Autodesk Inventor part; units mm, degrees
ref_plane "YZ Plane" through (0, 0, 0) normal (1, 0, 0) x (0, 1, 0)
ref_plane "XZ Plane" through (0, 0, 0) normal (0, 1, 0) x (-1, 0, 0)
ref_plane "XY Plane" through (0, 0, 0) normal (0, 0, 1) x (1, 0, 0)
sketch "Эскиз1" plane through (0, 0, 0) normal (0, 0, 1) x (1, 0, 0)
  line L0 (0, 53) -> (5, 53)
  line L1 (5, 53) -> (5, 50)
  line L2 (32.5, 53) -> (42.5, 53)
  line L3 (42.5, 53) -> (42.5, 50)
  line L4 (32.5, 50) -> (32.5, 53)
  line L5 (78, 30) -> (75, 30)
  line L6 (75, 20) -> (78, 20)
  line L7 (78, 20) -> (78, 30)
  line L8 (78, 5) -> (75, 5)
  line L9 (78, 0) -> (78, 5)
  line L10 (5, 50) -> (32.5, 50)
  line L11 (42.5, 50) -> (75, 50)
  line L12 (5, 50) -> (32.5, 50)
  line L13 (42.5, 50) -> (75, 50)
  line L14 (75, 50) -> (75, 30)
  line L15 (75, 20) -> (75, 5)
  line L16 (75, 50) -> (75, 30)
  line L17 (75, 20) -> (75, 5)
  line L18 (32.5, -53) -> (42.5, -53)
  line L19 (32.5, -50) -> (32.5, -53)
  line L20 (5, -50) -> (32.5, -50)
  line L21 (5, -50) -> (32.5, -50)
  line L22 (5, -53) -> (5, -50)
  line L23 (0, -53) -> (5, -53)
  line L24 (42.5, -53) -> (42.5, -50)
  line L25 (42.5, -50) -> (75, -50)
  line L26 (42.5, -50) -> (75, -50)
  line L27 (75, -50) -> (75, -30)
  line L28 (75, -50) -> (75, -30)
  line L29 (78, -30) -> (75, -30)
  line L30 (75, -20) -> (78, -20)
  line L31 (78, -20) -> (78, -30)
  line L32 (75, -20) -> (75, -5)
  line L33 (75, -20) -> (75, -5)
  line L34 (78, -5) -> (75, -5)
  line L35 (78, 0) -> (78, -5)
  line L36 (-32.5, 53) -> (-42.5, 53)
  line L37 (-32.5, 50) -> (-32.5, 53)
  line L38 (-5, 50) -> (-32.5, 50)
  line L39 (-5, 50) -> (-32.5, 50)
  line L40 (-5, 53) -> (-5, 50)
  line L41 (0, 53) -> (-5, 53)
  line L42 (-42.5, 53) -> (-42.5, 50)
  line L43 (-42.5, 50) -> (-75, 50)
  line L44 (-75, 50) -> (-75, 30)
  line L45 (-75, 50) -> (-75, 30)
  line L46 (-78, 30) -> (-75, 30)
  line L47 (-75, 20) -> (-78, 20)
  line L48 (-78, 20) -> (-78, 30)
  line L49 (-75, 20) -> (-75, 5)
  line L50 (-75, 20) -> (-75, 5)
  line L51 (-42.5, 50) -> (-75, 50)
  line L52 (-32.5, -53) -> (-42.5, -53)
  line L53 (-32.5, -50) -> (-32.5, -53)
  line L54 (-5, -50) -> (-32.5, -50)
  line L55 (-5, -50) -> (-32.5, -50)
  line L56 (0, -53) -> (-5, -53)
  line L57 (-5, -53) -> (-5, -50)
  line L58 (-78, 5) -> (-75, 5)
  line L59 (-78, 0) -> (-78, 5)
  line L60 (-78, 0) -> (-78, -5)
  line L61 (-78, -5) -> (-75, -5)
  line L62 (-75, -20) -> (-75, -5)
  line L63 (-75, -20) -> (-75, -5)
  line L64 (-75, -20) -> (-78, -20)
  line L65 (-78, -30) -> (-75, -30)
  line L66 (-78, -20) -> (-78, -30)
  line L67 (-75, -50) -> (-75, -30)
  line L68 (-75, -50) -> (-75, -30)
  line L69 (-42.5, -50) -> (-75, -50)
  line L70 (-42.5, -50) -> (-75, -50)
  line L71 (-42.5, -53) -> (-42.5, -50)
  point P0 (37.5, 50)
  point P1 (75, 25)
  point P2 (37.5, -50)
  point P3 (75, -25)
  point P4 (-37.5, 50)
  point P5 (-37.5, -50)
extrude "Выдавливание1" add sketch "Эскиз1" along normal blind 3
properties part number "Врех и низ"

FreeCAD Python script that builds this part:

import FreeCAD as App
import Part
import Sketcher

V = App.Vector

doc = App.newDocument("Part")
body = doc.addObject("PartDesign::Body", "Body")

sketch1 = doc.addObject("Sketcher::SketchObject", "Sketch")
body.addObject(sketch1)
sketch1.AttachmentSupport = (doc.XY_Plane, [""])
sketch1.MapMode = "FlatFace"
sketch1.addGeometry([
    Part.LineSegment(V(5, 53, 0), V(-5, 53, 0)),
    Part.LineSegment(V(-5, 53, 0), V(-5, 50, 0)),
    Part.LineSegment(V(-5, 50, 0), V(-32.5, 50, 0)),
    Part.LineSegment(V(-32.5, 50, 0), V(-32.5, 53, 0)),
    Part.LineSegment(V(-32.5, 53, 0), V(-42.5, 53, 0)),
    Part.LineSegment(V(-42.5, 53, 0), V(-42.5, 50, 0)),
    Part.LineSegment(V(-42.5, 50, 0), V(-75, 50, 0)),
    Part.LineSegment(V(-75, 50, 0), V(-75, 30, 0)),
    Part.LineSegment(V(-75, 30, 0), V(-78, 30, 0)),
    Part.LineSegment(V(-78, 30, 0), V(-78, 20, 0)),
    Part.LineSegment(V(-78, 20, 0), V(-75, 20, 0)),
    Part.LineSegment(V(-75, 20, 0), V(-75, 5, 0)),
    Part.LineSegment(V(-75, 5, 0), V(-78, 5, 0)),
    Part.LineSegment(V(-78, 5, 0), V(-78, -5, 0)),
    Part.LineSegment(V(-78, -5, 0), V(-75, -5, 0)),
    Part.LineSegment(V(-75, -5, 0), V(-75, -20, 0)),
    Part.LineSegment(V(-75, -20, 0), V(-78, -20, 0)),
    Part.LineSegment(V(-78, -20, 0), V(-78, -30, 0)),
    Part.LineSegment(V(-78, -30, 0), V(-75, -30, 0)),
    Part.LineSegment(V(-75, -30, 0), V(-75, -50, 0)),
    Part.LineSegment(V(-75, -50, 0), V(-42.5, -50, 0)),
    Part.LineSegment(V(-42.5, -50, 0), V(-42.5, -53, 0)),
    Part.LineSegment(V(-42.5, -53, 0), V(-32.5, -53, 0)),
    Part.LineSegment(V(-32.5, -53, 0), V(-32.5, -50, 0)),
    Part.LineSegment(V(-32.5, -50, 0), V(-5, -50, 0)),
    Part.LineSegment(V(-5, -50, 0), V(-5, -53, 0)),
    Part.LineSegment(V(-5, -53, 0), V(5, -53, 0)),
    Part.LineSegment(V(5, -53, 0), V(5, -50, 0)),
    Part.LineSegment(V(5, -50, 0), V(32.5, -50, 0)),
    Part.LineSegment(V(32.5, -50, 0), V(32.5, -53, 0)),
    Part.LineSegment(V(32.5, -53, 0), V(42.5, -53, 0)),
    Part.LineSegment(V(42.5, -53, 0), V(42.5, -50, 0)),
    Part.LineSegment(V(42.5, -50, 0), V(75, -50, 0)),
    Part.LineSegment(V(75, -50, 0), V(75, -30, 0)),
    Part.LineSegment(V(75, -30, 0), V(78, -30, 0)),
    Part.LineSegment(V(78, -30, 0), V(78, -20, 0)),
    Part.LineSegment(V(78, -20, 0), V(75, -20, 0)),
    Part.LineSegment(V(75, -20, 0), V(75, -5, 0)),
    Part.LineSegment(V(75, -5, 0), V(78, -5, 0)),
    Part.LineSegment(V(78, -5, 0), V(78, 5, 0)),
    Part.LineSegment(V(78, 5, 0), V(75, 5, 0)),
    Part.LineSegment(V(75, 5, 0), V(75, 20, 0)),
    Part.LineSegment(V(75, 20, 0), V(78, 20, 0)),
    Part.LineSegment(V(78, 20, 0), V(78, 30, 0)),
    Part.LineSegment(V(78, 30, 0), V(75, 30, 0)),
    Part.LineSegment(V(75, 30, 0), V(75, 50, 0)),
    Part.LineSegment(V(75, 50, 0), V(42.5, 50, 0)),
    Part.LineSegment(V(42.5, 50, 0), V(42.5, 53, 0)),
    Part.LineSegment(V(42.5, 53, 0), V(32.5, 53, 0)),
    Part.LineSegment(V(32.5, 53, 0), V(32.5, 50, 0)),
    Part.LineSegment(V(32.5, 50, 0), V(5, 50, 0)),
    Part.LineSegment(V(5, 50, 0), V(5, 53, 0)),
], False)
sketch1.addConstraint([
    Sketcher.Constraint("Coincident", 0, 2, 1, 1),
    Sketcher.Constraint("Coincident", 1, 2, 2, 1),
    Sketcher.Constraint("Coincident", 2, 2, 3, 1),
    Sketcher.Constraint("Coincident", 3, 2, 4, 1),
    Sketcher.Constraint("Coincident", 4, 2, 5, 1),
    Sketcher.Constraint("Coincident", 5, 2, 6, 1),
    Sketcher.Constraint("Coincident", 6, 2, 7, 1),
    Sketcher.Constraint("Coincident", 7, 2, 8, 1),
    Sketcher.Constraint("Coincident", 8, 2, 9, 1),
    Sketcher.Constraint("Coincident", 9, 2, 10, 1),
    Sketcher.Constraint("Coincident", 10, 2, 11, 1),
    Sketcher.Constraint("Coincident", 11, 2, 12, 1),
    Sketcher.Constraint("Coincident", 12, 2, 13, 1),
    Sketcher.Constraint("Coincident", 13, 2, 14, 1),
    Sketcher.Constraint("Coincident", 14, 2, 15, 1),
    Sketcher.Constraint("Coincident", 15, 2, 16, 1),
    Sketcher.Constraint("Coincident", 16, 2, 17, 1),
    Sketcher.Constraint("Coincident", 17, 2, 18, 1),
    Sketcher.Constraint("Coincident", 18, 2, 19, 1),
    Sketcher.Constraint("Coincident", 19, 2, 20, 1),
    Sketcher.Constraint("Coincident", 20, 2, 21, 1),
    Sketcher.Constraint("Coincident", 21, 2, 22, 1),
    Sketcher.Constraint("Coincident", 22, 2, 23, 1),
    Sketcher.Constraint("Coincident", 23, 2, 24, 1),
    Sketcher.Constraint("Coincident", 24, 2, 25, 1),
    Sketcher.Constraint("Coincident", 25, 2, 26, 1),
    Sketcher.Constraint("Coincident", 26, 2, 27, 1),
    Sketcher.Constraint("Coincident", 27, 2, 28, 1),
    Sketcher.Constraint("Coincident", 28, 2, 29, 1),
    Sketcher.Constraint("Coincident", 29, 2, 30, 1),
    Sketcher.Constraint("Coincident", 30, 2, 31, 1),
    Sketcher.Constraint("Coincident", 31, 2, 32, 1),
    Sketcher.Constraint("Coincident", 32, 2, 33, 1),
    Sketcher.Constraint("Coincident", 33, 2, 34, 1),
    Sketcher.Constraint("Coincident", 34, 2, 35, 1),
    Sketcher.Constraint("Coincident", 35, 2, 36, 1),
    Sketcher.Constraint("Coincident", 36, 2, 37, 1),
    Sketcher.Constraint("Coincident", 37, 2, 38, 1),
    Sketcher.Constraint("Coincident", 38, 2, 39, 1),
    Sketcher.Constraint("Coincident", 39, 2, 40, 1),
    Sketcher.Constraint("Coincident", 40, 2, 41, 1),
    Sketcher.Constraint("Coincident", 41, 2, 42, 1),
    Sketcher.Constraint("Coincident", 42, 2, 43, 1),
    Sketcher.Constraint("Coincident", 43, 2, 44, 1),
    Sketcher.Constraint("Coincident", 44, 2, 45, 1),
    Sketcher.Constraint("Coincident", 45, 2, 46, 1),
    Sketcher.Constraint("Coincident", 46, 2, 47, 1),
    Sketcher.Constraint("Coincident", 47, 2, 48, 1),
    Sketcher.Constraint("Coincident", 48, 2, 49, 1),
    Sketcher.Constraint("Coincident", 49, 2, 50, 1),
    Sketcher.Constraint("Coincident", 50, 2, 51, 1),
    Sketcher.Constraint("Coincident", 51, 2, 0, 1),
    Sketcher.Constraint("Horizontal", 0),
    Sketcher.Constraint("Vertical", 1),
    Sketcher.Constraint("Horizontal", 2),
    Sketcher.Constraint("Vertical", 3),
    Sketcher.Constraint("Horizontal", 4),
    Sketcher.Constraint("Vertical", 5),
    Sketcher.Constraint("Horizontal", 6),
    Sketcher.Constraint("Vertical", 7),
    Sketcher.Constraint("Horizontal", 8),
    Sketcher.Constraint("Vertical", 9),
    Sketcher.Constraint("Horizontal", 10),
    Sketcher.Constraint("Vertical", 11),
    Sketcher.Constraint("Horizontal", 12),
    Sketcher.Constraint("Vertical", 13),
    Sketcher.Constraint("Horizontal", 14),
    Sketcher.Constraint("Vertical", 15),
    Sketcher.Constraint("Horizontal", 16),
    Sketcher.Constraint("Vertical", 17),
    Sketcher.Constraint("Horizontal", 18),
    Sketcher.Constraint("Vertical", 19),
    Sketcher.Constraint("Horizontal", 20),
    Sketcher.Constraint("Vertical", 21),
    Sketcher.Constraint("Horizontal", 22),
    Sketcher.Constraint("Vertical", 23),
    Sketcher.Constraint("Horizontal", 24),
    Sketcher.Constraint("Vertical", 25),
    Sketcher.Constraint("Horizontal", 26),
    Sketcher.Constraint("Vertical", 27),
    Sketcher.Constraint("Horizontal", 28),
    Sketcher.Constraint("Vertical", 29),
    Sketcher.Constraint("Horizontal", 30),
    Sketcher.Constraint("Vertical", 31),
    Sketcher.Constraint("Horizontal", 32),
    Sketcher.Constraint("Vertical", 33),
    Sketcher.Constraint("Horizontal", 34),
    Sketcher.Constraint("Vertical", 35),
    Sketcher.Constraint("Horizontal", 36),
    Sketcher.Constraint("Vertical", 37),
    Sketcher.Constraint("Horizontal", 38),
    Sketcher.Constraint("Vertical", 39),
    Sketcher.Constraint("Horizontal", 40),
    Sketcher.Constraint("Vertical", 41),
    Sketcher.Constraint("Horizontal", 42),
    Sketcher.Constraint("Vertical", 43),
    Sketcher.Constraint("Horizontal", 44),
    Sketcher.Constraint("Vertical", 45),
    Sketcher.Constraint("Horizontal", 46),
    Sketcher.Constraint("Vertical", 47),
    Sketcher.Constraint("Horizontal", 48),
    Sketcher.Constraint("Vertical", 49),
    Sketcher.Constraint("Horizontal", 50),
    Sketcher.Constraint("Vertical", 51),
    Sketcher.Constraint("Symmetric", 0, 2, 26, 2, -1, 1),
    Sketcher.Constraint("Symmetric", 2, 2, 28, 2, -1, 1),
    Sketcher.Constraint("Symmetric", 4, 2, 30, 2, -1, 1),
    Sketcher.Constraint("Symmetric", 6, 2, 32, 2, -1, 1),
    Sketcher.Constraint("Symmetric", 8, 2, 34, 2, -1, 1),
    Sketcher.Constraint("Symmetric", 10, 2, 36, 2, -1, 1),
    Sketcher.Constraint("Symmetric", 12, 2, 38, 2, -1, 1),
    Sketcher.Constraint("Symmetric", 14, 2, 40, 2, -1, 1),
    Sketcher.Constraint("Symmetric", 16, 2, 42, 2, -1, 1),
    Sketcher.Constraint("Symmetric", 18, 2, 44, 2, -1, 1),
    Sketcher.Constraint("Symmetric", 20, 2, 46, 2, -1, 1),
    Sketcher.Constraint("Symmetric", 22, 2, 48, 2, -1, 1),
    Sketcher.Constraint("Symmetric", 24, 2, 50, 2, -1, 1),
    Sketcher.Constraint("Symmetric", 24, 2, 27, 2, -2),
    Sketcher.Constraint("Symmetric", 22, 2, 29, 2, -2),
    Sketcher.Constraint("Symmetric", 20, 2, 31, 2, -2),
    Sketcher.Constraint("Symmetric", 18, 2, 33, 2, -2),
    Sketcher.Constraint("Symmetric", 16, 2, 35, 2, -2),
    Sketcher.Constraint("Symmetric", 14, 2, 37, 2, -2),
    Sketcher.Constraint("Horizontal", 0, 2, 3, 2),
    Sketcher.Constraint("Horizontal", 2, 2, 5, 2),
    Sketcher.Constraint("Vertical", 7, 2, 10, 2),
    Sketcher.Constraint("Vertical", 9, 2, 12, 2),
    Sketcher.Constraint("Equal", 0, 4),
    Sketcher.Constraint("Equal", 44, 1),
    Sketcher.Constraint("Equal", 48, 9),
    Sketcher.Constraint("Equal", 9, 13),
    Sketcher.Constraint("DistanceX", 0, 2, 0, 1, 10.0),
    Sketcher.Constraint("DistanceX", 8, 2, 8, 1, 3.0),
    Sketcher.Constraint("DistanceY", 7, 2, 7, 1, 20.0),
    Sketcher.Constraint("DistanceY", 11, 2, 11, 1, 15.0),
    Sketcher.Constraint("DistanceX", 2, 2, 2, 1, 27.5),
    Sketcher.Constraint("DistanceX", 6, 2, 6, 1, 32.5),
])
pad1 = doc.addObject("PartDesign::Pad", "Pad")
body.addObject(pad1)
pad1.Profile = sketch1
pad1.Length = 3

doc.recompute()
